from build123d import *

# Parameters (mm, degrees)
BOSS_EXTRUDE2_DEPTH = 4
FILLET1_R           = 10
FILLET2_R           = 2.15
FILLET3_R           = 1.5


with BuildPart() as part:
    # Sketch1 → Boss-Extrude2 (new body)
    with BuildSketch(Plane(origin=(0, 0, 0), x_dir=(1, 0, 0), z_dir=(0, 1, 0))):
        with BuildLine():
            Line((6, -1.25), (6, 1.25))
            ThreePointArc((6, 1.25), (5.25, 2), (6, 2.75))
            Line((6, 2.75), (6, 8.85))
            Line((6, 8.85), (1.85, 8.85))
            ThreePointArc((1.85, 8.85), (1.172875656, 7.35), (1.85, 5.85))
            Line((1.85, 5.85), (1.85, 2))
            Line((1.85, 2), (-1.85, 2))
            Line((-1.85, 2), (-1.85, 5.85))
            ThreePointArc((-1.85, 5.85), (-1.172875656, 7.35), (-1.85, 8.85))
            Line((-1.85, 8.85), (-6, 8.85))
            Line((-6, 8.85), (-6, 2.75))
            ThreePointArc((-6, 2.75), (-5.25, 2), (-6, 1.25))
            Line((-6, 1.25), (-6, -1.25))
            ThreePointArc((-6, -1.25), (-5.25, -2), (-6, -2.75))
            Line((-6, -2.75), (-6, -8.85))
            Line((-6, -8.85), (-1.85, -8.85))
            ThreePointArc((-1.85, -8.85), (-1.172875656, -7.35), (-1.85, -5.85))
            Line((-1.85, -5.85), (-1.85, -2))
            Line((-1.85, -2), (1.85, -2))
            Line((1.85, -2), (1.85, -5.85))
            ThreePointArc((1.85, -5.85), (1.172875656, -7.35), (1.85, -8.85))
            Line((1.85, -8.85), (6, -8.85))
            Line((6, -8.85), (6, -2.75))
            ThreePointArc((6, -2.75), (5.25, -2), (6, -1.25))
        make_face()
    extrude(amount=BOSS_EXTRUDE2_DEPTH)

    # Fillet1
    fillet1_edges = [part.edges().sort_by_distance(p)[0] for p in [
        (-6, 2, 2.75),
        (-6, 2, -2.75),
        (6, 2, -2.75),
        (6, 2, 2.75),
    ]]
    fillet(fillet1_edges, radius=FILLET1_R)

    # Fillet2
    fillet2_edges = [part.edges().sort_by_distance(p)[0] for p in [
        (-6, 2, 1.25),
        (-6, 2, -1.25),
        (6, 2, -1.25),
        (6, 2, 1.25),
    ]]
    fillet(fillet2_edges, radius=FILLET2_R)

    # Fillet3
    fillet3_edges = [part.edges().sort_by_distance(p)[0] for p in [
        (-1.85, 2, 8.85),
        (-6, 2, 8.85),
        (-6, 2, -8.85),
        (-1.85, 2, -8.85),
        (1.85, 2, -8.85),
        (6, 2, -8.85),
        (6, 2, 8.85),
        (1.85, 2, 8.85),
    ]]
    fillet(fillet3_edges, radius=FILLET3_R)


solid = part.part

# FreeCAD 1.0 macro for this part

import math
import FreeCAD as App
import Part
import Sketcher
Q = App.Units.Quantity


def edges_at(feature, points):
    """Names of the edges that pass closest to the given points."""
    edges = feature.Shape.Edges
    near = lambda p: min(range(len(edges)), key=lambda i: edges[i].distToShape(Part.Vertex(*p))[0])
    return sorted({f"Edge{near(p) + 1}" for p in points})

doc = App.newDocument("Part")
body = doc.addObject("PartDesign::Body", "Body")

sketch1 = body.newObject("Sketcher::SketchObject", "Sketch")
sketch1.AttachmentSupport = (doc.getObject("XZ_Plane"), [""])
sketch1.MapMode = "FlatFace"
sketch1.addGeometry([
    Part.LineSegment(App.Vector(6, 1.2, 0), App.Vector(6, -1.2, 0)),
    Part.ArcOfCircle(Part.Circle(App.Vector(6, -2, 0), App.Vector(0, 0, 1), 0.8), math.radians(90), math.radians(270)),
    Part.LineSegment(App.Vector(6, -2.8, 0), App.Vector(6, -8.8, 0)),
    Part.LineSegment(App.Vector(6, -8.8, 0), App.Vector(1.9, -8.8, 0)),
    Part.ArcOfCircle(Part.Circle(App.Vector(3.2, -7.3, 0), App.Vector(0, 0, 1), 2), math.radians(131), math.radians(229)),
    Part.LineSegment(App.Vector(1.9, -5.8, 0), App.Vector(1.9, -2, 0)),
    Part.LineSegment(App.Vector(1.9, -2, 0), App.Vector(-1.9, -2, 0)),
    Part.LineSegment(App.Vector(-1.9, -2, 0), App.Vector(-1.9, -5.8, 0)),
    Part.ArcOfCircle(Part.Circle(App.Vector(-3.2, -7.3, 0), App.Vector(0, 0, 1), 2), math.radians(-49), math.radians(49)),
    Part.LineSegment(App.Vector(-1.9, -8.8, 0), App.Vector(-6, -8.8, 0)),
    Part.LineSegment(App.Vector(-6, -8.8, 0), App.Vector(-6, -2.8, 0)),
    Part.ArcOfCircle(Part.Circle(App.Vector(-6, -2, 0), App.Vector(0, 0, 1), 0.8), math.radians(-90), math.radians(90)),
    Part.LineSegment(App.Vector(-6, -1.2, 0), App.Vector(-6, 1.2, 0)),
    Part.ArcOfCircle(Part.Circle(App.Vector(-6, 2, 0), App.Vector(0, 0, 1), 0.8), math.radians(-90), math.radians(90)),
    Part.LineSegment(App.Vector(-6, 2.8, 0), App.Vector(-6, 8.8, 0)),
    Part.LineSegment(App.Vector(-6, 8.8, 0), App.Vector(-1.9, 8.8, 0)),
    Part.ArcOfCircle(Part.Circle(App.Vector(-3.2, 7.3, 0), App.Vector(0, 0, 1), 2), math.radians(-49), math.radians(49)),
    Part.LineSegment(App.Vector(-1.9, 5.8, 0), App.Vector(-1.9, 2, 0)),
    Part.LineSegment(App.Vector(-1.9, 2, 0), App.Vector(1.9, 2, 0)),
    Part.LineSegment(App.Vector(1.9, 2, 0), App.Vector(1.9, 5.8, 0)),
    Part.ArcOfCircle(Part.Circle(App.Vector(3.2, 7.3, 0), App.Vector(0, 0, 1), 2), math.radians(131), math.radians(229)),
    Part.LineSegment(App.Vector(1.9, 8.8, 0), App.Vector(6, 8.8, 0)),
    Part.LineSegment(App.Vector(6, 8.8, 0), App.Vector(6, 2.8, 0)),
    Part.ArcOfCircle(Part.Circle(App.Vector(6, 2, 0), App.Vector(0, 0, 1), 0.8), math.radians(90), math.radians(270)),
], False)
sketch1.addConstraint([
    Sketcher.Constraint("Coincident", 0, 2, 1, 1),
    Sketcher.Constraint("Coincident", 1, 2, 2, 1),
    Sketcher.Constraint("Coincident", 2, 2, 3, 1),
    Sketcher.Constraint("Coincident", 3, 2, 4, 2),
    Sketcher.Constraint("Coincident", 4, 1, 5, 1),
    Sketcher.Constraint("Coincident", 5, 2, 6, 1),
    Sketcher.Constraint("Coincident", 6, 2, 7, 1),
    Sketcher.Constraint("Coincident", 7, 2, 8, 2),
    Sketcher.Constraint("Coincident", 8, 1, 9, 1),
    Sketcher.Constraint("Coincident", 9, 2, 10, 1),
    Sketcher.Constraint("Coincident", 10, 2, 11, 1),
    Sketcher.Constraint("Coincident", 11, 2, 12, 1),
    Sketcher.Constraint("Coincident", 12, 2, 13, 1),
    Sketcher.Constraint("Coincident", 13, 2, 14, 1),
    Sketcher.Constraint("Coincident", 14, 2, 15, 1),
    Sketcher.Constraint("Coincident", 15, 2, 16, 2),
    Sketcher.Constraint("Coincident", 16, 1, 17, 1),
    Sketcher.Constraint("Coincident", 17, 2, 18, 1),
    Sketcher.Constraint("Coincident", 18, 2, 19, 1),
    Sketcher.Constraint("Coincident", 19, 2, 20, 2),
    Sketcher.Constraint("Coincident", 20, 1, 21, 1),
    Sketcher.Constraint("Coincident", 21, 2, 22, 1),
    Sketcher.Constraint("Coincident", 22, 2, 23, 1),
    Sketcher.Constraint("Coincident", 23, 2, 0, 1),
    Sketcher.Constraint("Vertical", 0),
    Sketcher.Constraint("Vertical", 2),
    Sketcher.Constraint("Horizontal", 3),
    Sketcher.Constraint("Vertical", 5),
    Sketcher.Constraint("Horizontal", 6),
    Sketcher.Constraint("Vertical", 7),
    Sketcher.Constraint("Horizontal", 9),
    Sketcher.Constraint("Vertical", 10),
    Sketcher.Constraint("Vertical", 12),
    Sketcher.Constraint("Vertical", 14),
    Sketcher.Constraint("Horizontal", 15),
    Sketcher.Constraint("Vertical", 17),
    Sketcher.Constraint("Horizontal", 18),
    Sketcher.Constraint("Vertical", 19),
    Sketcher.Constraint("Horizontal", 21),
    Sketcher.Constraint("Vertical", 22),
    Sketcher.Constraint("Equal", 4, 8),
    Sketcher.Constraint("Equal", 1, 11),
    Sketcher.Constraint("Equal", 11, 13),
    Sketcher.Constraint("Equal", 8, 16),
    Sketcher.Constraint("Equal", 16, 20),
    Sketcher.Constraint("Equal", 13, 23),
    Sketcher.Constraint("Symmetric", 1, 3, 13, 3, -1, 1),
    Sketcher.Constraint("Symmetric", 4, 3, 16, 3, -1, 1),
    Sketcher.Constraint("Symmetric", 8, 3, 20, 3, -1, 1),
    Sketcher.Constraint("Symmetric", 11, 3, 23, 3, -1, 1),
    Sketcher.Constraint("Symmetric", 2, 2, 14, 2, -1, 1),
    Sketcher.Constraint("Symmetric", 5, 2, 17, 2, -1, 1),
    Sketcher.Constraint("Symmetric", 9, 2, 21, 2, -1, 1),
    Sketcher.Constraint("Symmetric", 4, 3, 8, 3, -2),
    Sketcher.Constraint("Symmetric", 1, 3, 11, 3, -2),
    Sketcher.Constraint("Symmetric", 2, 2, 9, 2, -2),
    Sketcher.Constraint("Horizontal", 11, 3, 5, 2),
    Sketcher.Constraint("Horizontal", 4, 1, 7, 2),
    Sketcher.Constraint("Horizontal", 16, 1, 19, 2),
    Sketcher.Constraint("Vertical", 23, 3, 0, 2),
    Sketcher.Constraint("Vertical", 0, 2, 1, 2),
    Sketcher.Constraint("Vertical", 3, 2, 4, 1),
    Sketcher.Constraint("Vertical", 10, 2, 11, 2),
    Sketcher.Constraint("Radius", 4, Q("2 mm")),
    Sketcher.Constraint("Radius", 1, Q("0.75 mm")),
    Sketcher.Constraint("DistanceX", 6, 2, 6, 1, Q("3.7 mm")),
    Sketcher.Constraint("DistanceY", 0, 2, 0, 1, Q("2.5 mm")),
    Sketcher.Constraint("DistanceY", 2, 2, 2, 1, Q("6.1 mm")),
    Sketcher.Constraint("DistanceX", -1, 1, 1, 3, Q("6 mm")),
    Sketcher.Constraint("DistanceY", 3, 2, 4, 1, Q("3 mm")),
])
pad1 = body.newObject("PartDesign::Pad", "Pad")
pad1.Profile = sketch1
pad1.Length = 4
pad1.Reversed = True
doc.recompute()

fillet = body.newObject("PartDesign::Fillet", "Fillet")
fillet.Base = (pad1, edges_at(pad1, [
    (-6, 2, 2.75),
    (-6, 2, -2.75),
    (6, 2, -2.75),
    (6, 2, 2.75),
]))
fillet.Radius = 10
doc.recompute()

fillet2 = body.newObject("PartDesign::Fillet", "Fillet001")
fillet2.Base = (fillet, edges_at(fillet, [
    (-6, 2, 1.25),
    (-6, 2, -1.25),
    (6, 2, -1.25),
    (6, 2, 1.25),
]))
fillet2.Radius = 2.15
doc.recompute()

fillet3 = body.newObject("PartDesign::Fillet", "Fillet002")
fillet3.Base = (fillet2, edges_at(fillet2, [
    (-1.85, 2, 8.85),
    (-6, 2, 8.85),
    (-6, 2, -8.85),
    (-1.85, 2, -8.85),
    (1.85, 2, -8.85),
    (6, 2, -8.85),
    (6, 2, 8.85),
    (1.85, 2, 8.85),
]))
fillet3.Radius = 1.5

doc.recompute()
